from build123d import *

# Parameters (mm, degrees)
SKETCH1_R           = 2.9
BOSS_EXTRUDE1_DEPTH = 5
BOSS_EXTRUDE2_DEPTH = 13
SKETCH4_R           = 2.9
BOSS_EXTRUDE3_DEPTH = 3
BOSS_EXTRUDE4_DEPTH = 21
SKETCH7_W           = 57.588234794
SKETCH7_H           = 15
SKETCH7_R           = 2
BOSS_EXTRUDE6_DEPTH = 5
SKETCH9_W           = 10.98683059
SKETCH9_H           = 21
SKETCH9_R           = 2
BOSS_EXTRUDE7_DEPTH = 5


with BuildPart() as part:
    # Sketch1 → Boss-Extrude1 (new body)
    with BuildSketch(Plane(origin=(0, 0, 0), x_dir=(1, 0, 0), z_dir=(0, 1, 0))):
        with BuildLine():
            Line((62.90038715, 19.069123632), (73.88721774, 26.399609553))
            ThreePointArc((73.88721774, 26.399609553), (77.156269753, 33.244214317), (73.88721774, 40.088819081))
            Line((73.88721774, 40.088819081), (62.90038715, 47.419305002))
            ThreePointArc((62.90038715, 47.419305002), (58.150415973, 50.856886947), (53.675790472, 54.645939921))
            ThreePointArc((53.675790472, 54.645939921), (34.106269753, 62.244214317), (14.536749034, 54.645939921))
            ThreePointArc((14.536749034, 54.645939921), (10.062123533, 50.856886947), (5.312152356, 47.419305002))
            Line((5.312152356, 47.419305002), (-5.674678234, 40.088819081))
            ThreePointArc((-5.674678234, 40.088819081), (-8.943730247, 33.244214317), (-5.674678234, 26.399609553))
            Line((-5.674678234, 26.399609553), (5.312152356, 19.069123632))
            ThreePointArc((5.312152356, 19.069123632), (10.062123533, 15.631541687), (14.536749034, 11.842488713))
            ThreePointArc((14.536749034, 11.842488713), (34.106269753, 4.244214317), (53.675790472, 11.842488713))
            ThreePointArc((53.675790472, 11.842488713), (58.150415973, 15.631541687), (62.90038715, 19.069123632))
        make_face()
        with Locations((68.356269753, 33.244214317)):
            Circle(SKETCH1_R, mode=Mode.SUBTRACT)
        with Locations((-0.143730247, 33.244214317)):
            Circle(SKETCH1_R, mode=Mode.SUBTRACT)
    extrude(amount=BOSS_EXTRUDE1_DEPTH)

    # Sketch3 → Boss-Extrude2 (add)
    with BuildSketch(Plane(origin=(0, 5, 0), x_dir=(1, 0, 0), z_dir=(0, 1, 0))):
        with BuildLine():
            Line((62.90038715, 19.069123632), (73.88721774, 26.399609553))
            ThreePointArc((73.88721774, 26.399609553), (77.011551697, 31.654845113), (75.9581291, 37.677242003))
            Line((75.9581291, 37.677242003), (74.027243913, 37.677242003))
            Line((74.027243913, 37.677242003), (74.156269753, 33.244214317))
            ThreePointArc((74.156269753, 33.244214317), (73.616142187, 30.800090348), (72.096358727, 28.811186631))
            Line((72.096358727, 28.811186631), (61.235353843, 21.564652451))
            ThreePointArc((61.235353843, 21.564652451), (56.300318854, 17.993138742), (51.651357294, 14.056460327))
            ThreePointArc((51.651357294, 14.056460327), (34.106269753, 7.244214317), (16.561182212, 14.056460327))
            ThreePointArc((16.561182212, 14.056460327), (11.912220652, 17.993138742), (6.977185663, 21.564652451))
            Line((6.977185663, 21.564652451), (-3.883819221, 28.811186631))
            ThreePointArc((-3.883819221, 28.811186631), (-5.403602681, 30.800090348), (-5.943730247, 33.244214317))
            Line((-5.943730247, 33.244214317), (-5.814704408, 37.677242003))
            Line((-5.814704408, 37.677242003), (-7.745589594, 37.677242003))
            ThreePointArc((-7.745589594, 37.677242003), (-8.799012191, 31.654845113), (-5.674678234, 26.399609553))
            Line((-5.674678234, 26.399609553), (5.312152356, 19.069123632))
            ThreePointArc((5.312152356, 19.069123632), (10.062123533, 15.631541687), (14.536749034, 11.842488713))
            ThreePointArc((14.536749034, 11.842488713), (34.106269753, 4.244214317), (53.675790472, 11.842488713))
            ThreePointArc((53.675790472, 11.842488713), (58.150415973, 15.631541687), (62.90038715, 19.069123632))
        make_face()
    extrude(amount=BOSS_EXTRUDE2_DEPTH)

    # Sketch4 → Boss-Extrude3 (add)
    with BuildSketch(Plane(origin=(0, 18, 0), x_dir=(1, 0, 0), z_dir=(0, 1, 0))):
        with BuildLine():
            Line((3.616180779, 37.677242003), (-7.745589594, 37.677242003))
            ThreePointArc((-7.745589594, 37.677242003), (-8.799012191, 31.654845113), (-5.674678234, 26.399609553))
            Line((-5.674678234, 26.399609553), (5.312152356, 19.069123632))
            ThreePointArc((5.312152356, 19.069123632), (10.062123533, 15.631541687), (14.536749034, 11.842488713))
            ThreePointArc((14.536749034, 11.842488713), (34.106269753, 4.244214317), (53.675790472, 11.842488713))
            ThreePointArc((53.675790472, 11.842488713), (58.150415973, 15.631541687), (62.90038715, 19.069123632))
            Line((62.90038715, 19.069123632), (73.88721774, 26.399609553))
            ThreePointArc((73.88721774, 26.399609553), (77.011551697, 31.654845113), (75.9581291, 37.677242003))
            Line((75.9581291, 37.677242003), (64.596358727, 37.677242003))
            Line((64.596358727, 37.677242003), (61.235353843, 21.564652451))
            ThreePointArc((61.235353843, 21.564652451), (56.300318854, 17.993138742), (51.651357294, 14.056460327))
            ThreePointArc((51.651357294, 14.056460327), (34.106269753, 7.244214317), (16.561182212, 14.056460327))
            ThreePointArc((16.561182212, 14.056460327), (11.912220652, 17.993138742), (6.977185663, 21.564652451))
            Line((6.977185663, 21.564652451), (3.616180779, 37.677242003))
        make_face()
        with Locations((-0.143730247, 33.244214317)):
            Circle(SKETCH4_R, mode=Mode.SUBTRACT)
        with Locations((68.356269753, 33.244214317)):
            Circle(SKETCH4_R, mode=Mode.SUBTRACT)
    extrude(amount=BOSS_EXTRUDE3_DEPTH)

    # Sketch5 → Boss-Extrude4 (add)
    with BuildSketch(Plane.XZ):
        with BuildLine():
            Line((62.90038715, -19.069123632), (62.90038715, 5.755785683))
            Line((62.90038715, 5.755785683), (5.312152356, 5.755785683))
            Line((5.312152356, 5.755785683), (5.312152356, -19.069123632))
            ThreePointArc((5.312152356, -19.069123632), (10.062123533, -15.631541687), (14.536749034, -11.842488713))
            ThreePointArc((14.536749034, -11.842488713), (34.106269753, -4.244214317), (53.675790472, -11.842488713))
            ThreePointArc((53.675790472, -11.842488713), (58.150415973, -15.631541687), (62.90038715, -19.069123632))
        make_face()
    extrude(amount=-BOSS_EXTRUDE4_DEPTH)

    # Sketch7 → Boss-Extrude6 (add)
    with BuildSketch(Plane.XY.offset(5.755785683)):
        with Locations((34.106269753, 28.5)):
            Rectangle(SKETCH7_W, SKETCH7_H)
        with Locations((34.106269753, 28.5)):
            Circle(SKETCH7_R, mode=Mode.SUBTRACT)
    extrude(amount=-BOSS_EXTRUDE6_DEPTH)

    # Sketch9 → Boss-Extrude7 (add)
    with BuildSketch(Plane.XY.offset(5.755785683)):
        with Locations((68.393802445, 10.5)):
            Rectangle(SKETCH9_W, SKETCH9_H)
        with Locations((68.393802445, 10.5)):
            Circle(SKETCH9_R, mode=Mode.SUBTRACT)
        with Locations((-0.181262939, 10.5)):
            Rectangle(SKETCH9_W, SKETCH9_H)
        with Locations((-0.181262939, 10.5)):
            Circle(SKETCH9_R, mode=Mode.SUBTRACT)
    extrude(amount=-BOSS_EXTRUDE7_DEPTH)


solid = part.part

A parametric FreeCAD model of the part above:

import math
import FreeCAD as App
import Part
import Sketcher

doc = App.newDocument("Part")
body = doc.addObject("PartDesign::Body", "Body")

# Sketch on XZ plane
sketch1 = body.newObject("Sketcher::SketchObject", "Sketch")
sketch1.AttachmentSupport = (doc.getObject("XZ_Plane"), [""])
sketch1.MapMode = "FlatFace"
sketch1.addGeometry([
    Part.LineSegment(App.Vector(62.9, -19.1, 0), App.Vector(73.9, -26.4, 0)),  # 0
    Part.ArcOfCircle(Part.Circle(App.Vector(68.4, -33.2, 0), App.Vector(0, 0, 1), 8.8), math.radians(-51), math.radians(51)),  # 1
    Part.LineSegment(App.Vector(73.9, -40.1, 0), App.Vector(62.9, -47.4, 0)),  # 2
    Part.ArcOfCircle(Part.Circle(App.Vector(105.6, -111.5, 0), App.Vector(0, 0, 1), 77), math.radians(123.71), math.radians(132.44)),  # 3
    Part.ArcOfCircle(Part.Circle(App.Vector(34.1, -33.2, 0), App.Vector(0, 0, 1), 29), math.radians(-132), math.radians(-48)),  # 4
    Part.ArcOfCircle(Part.Circle(App.Vector(-37.4, -111.5, 0), App.Vector(0, 0, 1), 77), math.radians(47.56), math.radians(56.29)),  # 5
    Part.LineSegment(App.Vector(5.3, -47.4, 0), App.Vector(-5.7, -40.1, 0)),  # 6
    Part.ArcOfCircle(Part.Circle(App.Vector(-0.1, -33.2, 0), App.Vector(0, 0, 1), 8.8), math.radians(129), math.radians(231)),  # 7
    Part.LineSegment(App.Vector(-5.7, -26.4, 0), App.Vector(5.3, -19.1, 0)),  # 8
    Part.ArcOfCircle(Part.Circle(App.Vector(-37.4, 45, 0), App.Vector(0, 0, 1), 77), math.radians(-56.29), math.radians(-47.56)),  # 9
    Part.ArcOfCircle(Part.Circle(App.Vector(34.1, -33.2, 0), App.Vector(0, 0, 1), 29), math.radians(48), math.radians(132)),  # 10
    Part.ArcOfCircle(Part.Circle(App.Vector(105.6, 45, 0), App.Vector(0, 0, 1), 77), math.radians(-132.44), math.radians(-123.71)),  # 11
    Part.Circle(App.Vector(-0.1, -33.2, 0), App.Vector(0, 0, 1), 2.9),  # 12
    Part.Circle(App.Vector(68.4, -33.2, 0), App.Vector(0, 0, 1), 2.9),  # 13
], False)
sketch1.addConstraint([
    Sketcher.Constraint("Coincident", 0, 2, 1, 2),
    Sketcher.Constraint("Coincident", 1, 1, 2, 1),
    Sketcher.Constraint("Tangent", 2, 2, 3, 1),
    Sketcher.Constraint("Tangent", 3, 2, 4, 2),
    Sketcher.Constraint("Tangent", 4, 1, 5, 1),
    Sketcher.Constraint("Tangent", 5, 2, 6, 1),
    Sketcher.Constraint("Coincident", 6, 2, 7, 2),
    Sketcher.Constraint("Coincident", 7, 1, 8, 1),
    Sketcher.Constraint("Tangent", 8, 2, 9, 1),
    Sketcher.Constraint("Tangent", 9, 2, 10, 2),
    Sketcher.Constraint("Tangent", 10, 1, 11, 1),
    Sketcher.Constraint("Tangent", 11, 2, 0, 1),
    Sketcher.Constraint("Coincident", 10, 3, 4, 3),
    Sketcher.Constraint("Coincident", 12, 3, 7, 3),
    Sketcher.Constraint("Coincident", 13, 3, 1, 3),
    Sketcher.Constraint("Equal", 3, 5),
    Sketcher.Constraint("Equal", 1, 7),
    Sketcher.Constraint("Equal", 5, 9),
    Sketcher.Constraint("Equal", 4, 10),
    Sketcher.Constraint("Equal", 9, 11),
    Sketcher.Constraint("Equal", 12, 13),
    Sketcher.Constraint("Parallel", 0, 6),
    Sketcher.Constraint("Parallel", 2, 8),
    Sketcher.Constraint("Horizontal", 1, 3, 4, 3),
    Sketcher.Constraint("Horizontal", 3, 3, 5, 3),
    Sketcher.Constraint("Horizontal", 4, 3, 7, 3),
    Sketcher.Constraint("Horizontal", 9, 3, 11, 3),
    Sketcher.Constraint("Horizontal", 2, 2, 5, 2),
    Sketcher.Constraint("Horizontal", 1, 1, 6, 2),
    Sketcher.Constraint("Vertical", 5, 3, 9, 3),
    Sketcher.Constraint("Radius", 3, 77.0),
    Sketcher.Constraint("Radius", 4, 29.0),
    Sketcher.Constraint("Diameter", 12, 5.8),
    Sketcher.Constraint("Radius", 1, 8.8),
    Sketcher.Constraint("DistanceX", 7, 3, 1, 3, 68.5),
    Sketcher.Constraint("Distance", 0, 13.207819),
    Sketcher.Constraint("DistanceX", -1, 1, 1, 3, 68.35627),
    Sketcher.Constraint("DistanceX", -1, 1, 3, 3, 105.636242),
    Sketcher.Constraint("DistanceY", 3, 3, -1, 1, 111.471211),
])
pad1 = body.newObject("PartDesign::Pad", "Pad")
pad1.Profile = sketch1
pad1.Length = 5
pad1.Reversed = True

# Sketch on XZ plane
sketch2 = body.newObject("Sketcher::SketchObject", "Sketch001")
sketch2.AttachmentSupport = (doc.getObject("XZ_Plane"), [""])
sketch2.MapMode = "FlatFace"
sketch2.AttachmentOffset = App.Placement(App.Vector(0, 0, -5), App.Rotation())
sketch2.addGeometry([
    Part.LineSegment(App.Vector(62.9, -19.1, 0), App.Vector(73.9, -26.4, 0)),  # 0
    Part.ArcOfCircle(Part.Circle(App.Vector(68.4, -33.2, 0), App.Vector(0, 0, 1), 8.8), math.radians(-30), math.radians(51)),  # 1
    Part.LineSegment(App.Vector(76, -37.7, 0), App.Vector(74, -37.7, 0)),  # 2
    Part.LineSegment(App.Vector(74, -37.7, 0), App.Vector(74.2, -33.2, 0)),  # 3
    Part.ArcOfCircle(Part.Circle(App.Vector(68.4, -33.2, 0), App.Vector(0, 0, 1), 5.8), math.radians(0), math.radians(50)),  # 4
    Part.LineSegment(App.Vector(72.1, -28.8, 0), App.Vector(61.2, -21.6, 0)),  # 5
    Part.ArcOfCircle(Part.Circle(App.Vector(105.6, 45, 0), App.Vector(0, 0, 1), 80), math.radians(-132.44), math.radians(-123.71)),  # 6
    Part.ArcOfCircle(Part.Circle(App.Vector(34.1, -33.2, 0), App.Vector(0, 0, 1), 26), math.radians(48), math.radians(132)),  # 7
    Part.ArcOfCircle(Part.Circle(App.Vector(-37.4, 45, 0), App.Vector(0, 0, 1), 80), math.radians(-56.29), math.radians(-47.56)),  # 8
    Part.LineSegment(App.Vector(7, -21.6, 0), App.Vector(-3.9, -28.8, 0)),  # 9
    Part.ArcOfCircle(Part.Circle(App.Vector(-0.1, -33.2, 0), App.Vector(0, 0, 1), 5.8), math.radians(130), math.radians(180)),  # 10
    Part.LineSegment(App.Vector(-5.9, -33.2, 0), App.Vector(-5.8, -37.7, 0)),  # 11
    Part.LineSegment(App.Vector(-5.8, -37.7, 0), App.Vector(-7.7, -37.7, 0)),  # 12
    Part.ArcOfCircle(Part.Circle(App.Vector(-0.1, -33.2, 0), App.Vector(0, 0, 1), 8.8), math.radians(129), math.radians(210)),  # 13
    Part.LineSegment(App.Vector(-5.7, -26.4, 0), App.Vector(5.3, -19.1, 0)),  # 14
    Part.ArcOfCircle(Part.Circle(App.Vector(-37.4, 45, 0), App.Vector(0, 0, 1), 77), math.radians(-56.29), math.radians(-47.56)),  # 15
    Part.ArcOfCircle(Part.Circle(App.Vector(34.1, -33.2, 0), App.Vector(0, 0, 1), 29), math.radians(48), math.radians(132)),  # 16
    Part.ArcOfCircle(Part.Circle(App.Vector(105.6, 45, 0), App.Vector(0, 0, 1), 77), math.radians(-132.44), math.radians(-123.71)),  # 17
], False)
sketch2.addConstraint([
    Sketcher.Constraint("Coincident", 0, 2, 1, 2),
    Sketcher.Constraint("Coincident", 1, 1, 2, 1),
    Sketcher.Constraint("Coincident", 2, 2, 3, 1),
    Sketcher.Constraint("Coincident", 3, 2, 4, 1),
    Sketcher.Constraint("Coincident", 4, 2, 5, 1),
    Sketcher.Constraint("Tangent", 5, 2, 6, 2),
    Sketcher.Constraint("Tangent", 6, 1, 7, 1),
    Sketcher.Constraint("Tangent", 7, 2, 8, 2),
    Sketcher.Constraint("Tangent", 8, 1, 9, 1),
    Sketcher.Constraint("Coincident", 9, 2, 10, 1),
    Sketcher.Constraint("Coincident", 10, 2, 11, 1),
    Sketcher.Constraint("Coincident", 11, 2, 12, 1),
    Sketcher.Constraint("Coincident", 12, 2, 13, 2),
    Sketcher.Constraint("Coincident", 13, 1, 14, 1),
    Sketcher.Constraint("Tangent", 14, 2, 15, 1),
    Sketcher.Constraint("Tangent", 15, 2, 16, 2),
    Sketcher.Constraint("Tangent", 16, 1, 17, 1),
    Sketcher.Constraint("Tangent", 17, 2, 0, 1),
    Sketcher.Constraint("Horizontal", 2),
    Sketcher.Constraint("Horizontal", 12),
    Sketcher.Constraint("Coincident", 4, 3, 1, 3),
    Sketcher.Constraint("Coincident", 13, 3, 10, 3),
    Sketcher.Constraint("Coincident", 15, 3, 8, 3),
    Sketcher.Constraint("Coincident", 16, 3, 7, 3),
    Sketcher.Constraint("Coincident", 17, 3, 6, 3),
    Sketcher.Constraint("Equal", 6, 8),
    Sketcher.Constraint("Equal", 4, 10),
    Sketcher.Constraint("Equal", 1, 13),
    Sketcher.Constraint("Parallel", 0, 5),
    Sketcher.Constraint("Parallel", 9, 14),
    Sketcher.Constraint("Horizontal", 4, 3, 7, 3),
    Sketcher.Constraint("Horizontal", 6, 3, 8, 3),
    Sketcher.Constraint("Horizontal", 7, 3, 10, 3),
    Sketcher.Constraint("Horizontal", 16, 3, 3, 2),
    Sketcher.Constraint("Horizontal", 5, 2, 8, 1),
    Sketcher.Constraint("Horizontal", 4, 2, 9, 2),
    Sketcher.Constraint("Horizontal", 3, 2, 10, 2),
    Sketcher.Constraint("Horizontal", 2, 2, 11, 2),
    Sketcher.Constraint("Equal", 2, 12),
    Sketcher.Constraint("Radius", 6, 80.0),
    Sketcher.Constraint("Radius", 7, 26.0),
    Sketcher.Constraint("Radius", 15, 77.0),
    Sketcher.Constraint("Radius", 1, 8.8),
    Sketcher.Constraint("Radius", 4, 5.8),
    Sketcher.Constraint("DistanceX", 10, 3, 1, 3, 68.5),
    Sketcher.Constraint("DistanceX", 6, 1, 4, 2, 20.445001),
    Sketcher.Constraint("Distance", 0, 13.207819),
    Sketcher.Constraint("DistanceX", 2, 2, 2, 1, 1.930885),
    Sketcher.Constraint("DistanceX", -1, 1, 1, 3, 68.35627),
    Sketcher.Constraint("DistanceY", 0, 2, -1, 1, 26.39961),
    Sketcher.Constraint("DistanceX", -1, 1, 1, 1, 75.958129),
])
pad2 = body.newObject("PartDesign::Pad", "Pad001")
pad2.Profile = sketch2
pad2.Length = 13
pad2.Reversed = True

# Sketch on XZ plane
sketch3 = body.newObject("Sketcher::SketchObject", "Sketch002")
sketch3.AttachmentSupport = (doc.getObject("XZ_Plane"), [""])
sketch3.MapMode = "FlatFace"
sketch3.AttachmentOffset = App.Placement(App.Vector(0, 0, -18), App.Rotation())
sketch3.addGeometry([
    Part.LineSegment(App.Vector(3.6, -37.7, 0), App.Vector(-7.7, -37.7, 0)),  # 0
    Part.ArcOfCircle(Part.Circle(App.Vector(-0.1, -33.2, 0), App.Vector(0, 0, 1), 8.8), math.radians(129), math.radians(210)),  # 1
    Part.LineSegment(App.Vector(-5.7, -26.4, 0), App.Vector(5.3, -19.1, 0)),  # 2
    Part.ArcOfCircle(Part.Circle(App.Vector(-37.4, 45, 0), App.Vector(0, 0, 1), 77), math.radians(-56.29), math.radians(-47.56)),  # 3
    Part.ArcOfCircle(Part.Circle(App.Vector(34.1, -33.2, 0), App.Vector(0, 0, 1), 29), math.radians(48), math.radians(132)),  # 4
    Part.ArcOfCircle(Part.Circle(App.Vector(105.6, 45, 0), App.Vector(0, 0, 1), 77), math.radians(-132.44), math.radians(-123.71)),  # 5
    Part.LineSegment(App.Vector(62.9, -19.1, 0), App.Vector(73.9, -26.4, 0)),  # 6
    Part.ArcOfCircle(Part.Circle(App.Vector(68.4, -33.2, 0), App.Vector(0, 0, 1), 8.8), math.radians(-30), math.radians(51)),  # 7
    Part.LineSegment(App.Vector(76, -37.7, 0), App.Vector(64.6, -37.7, 0)),  # 8
    Part.LineSegment(App.Vector(64.6, -37.7, 0), App.Vector(61.2, -21.6, 0)),  # 9
    Part.ArcOfCircle(Part.Circle(App.Vector(105.6, 45, 0), App.Vector(0, 0, 1), 80), math.radians(-132.44), math.radians(-123.71)),  # 10
    Part.ArcOfCircle(Part.Circle(App.Vector(34.1, -33.2, 0), App.Vector(0, 0, 1), 26), math.radians(48), math.radians(132)),  # 11
    Part.ArcOfCircle(Part.Circle(App.Vector(-37.4, 45, 0), App.Vector(0, 0, 1), 80), math.radians(-56.29), math.radians(-47.56)),  # 12
    Part.LineSegment(App.Vector(7, -21.6, 0), App.Vector(3.6, -37.7, 0)),  # 13
    Part.Circle(App.Vector(-0.1, -33.2, 0), App.Vector(0, 0, 1), 2.9),  # 14
    Part.Circle(App.Vector(68.4, -33.2, 0), App.Vector(0, 0, 1), 2.9),  # 15
], False)
sketch3.addConstraint([
    Sketcher.Constraint("Coincident", 0, 2, 1, 2),
    Sketcher.Constraint("Coincident", 1, 1, 2, 1),
    Sketcher.Constraint("Tangent", 2, 2, 3, 1),
    Sketcher.Constraint("Tangent", 3, 2, 4, 2),
    Sketcher.Constraint("Tangent", 4, 1, 5, 1),
    Sketcher.Constraint("Tangent", 5, 2, 6, 1),
    Sketcher.Constraint("Coincident", 6, 2, 7, 2),
    Sketcher.Constraint("Coincident", 7, 1, 8, 1),
    Sketcher.Constraint("Coincident", 8, 2, 9, 1),
    Sketcher.Constraint("Coincident", 9, 2, 10, 2),
    Sketcher.Constraint("Tangent", 10, 1, 11, 1),
    Sketcher.Constraint("Tangent", 11, 2, 12, 2),
    Sketcher.Constraint("Coincident", 12, 1, 13, 1),
    Sketcher.Constraint("Coincident", 13, 2, 0, 1),
    Sketcher.Constraint("Horizontal", 0),
    Sketcher.Constraint("Horizontal", 8),
    Sketcher.Constraint("Coincident", 10, 3, 5, 3),
    Sketcher.Constraint("Coincident", 11, 3, 4, 3),
    Sketcher.Constraint("Coincident", 12, 3, 3, 3),
    Sketcher.Constraint("Coincident", 14, 3, 1, 3),
    Sketcher.Constraint("Coincident", 15, 3, 7, 3),
    Sketcher.Constraint("Equal", 3, 5),
    Sketcher.Constraint("Equal", 1, 7),
    Sketcher.Constraint("Equal", 14, 15),
    Sketcher.Constraint("Horizontal", 1, 3, 4, 3),
    Sketcher.Constraint("Horizontal", 3, 3, 5, 3),
    Sketcher.Constraint("Horizontal", 4, 3, 7, 3),
    Sketcher.Constraint("Horizontal", 2, 2, 5, 2),
    Sketcher.Constraint("Horizontal", 1, 1, 6, 2),
    Sketcher.Constraint("Horizontal", 0, 2, 7, 1),
    Sketcher.Constraint("Horizontal", 9, 2, 12, 1),
    Sketcher.Constraint("Equal", 0, 8),
    Sketcher.Constraint("Radius", 3, 77.0),
    Sketcher.Constraint("Radius", 4, 29.0),
    Sketcher.Constraint("Radius", 10, 80.0),
    Sketcher.Constraint("Diameter", 14, 5.8),
    Sketcher.Constraint("Radius", 1, 8.8),
    Sketcher.Constraint("DistanceX", 1, 3, 7, 3, 68.5),
    Sketcher.Constraint("Distance", 9, 16.459401),
    Sketcher.Constraint("DistanceX", 0, 2, 0, 1, 11.36177),
    Sketcher.Constraint("Distance", 2, 13.207819),
    Sketcher.Constraint("DistanceX", 1, 3, -1, 1, 0.14373),
    Sketcher.Constraint("DistanceX", -1, 1, 5, 3, 105.636242),
    Sketcher.Constraint("DistanceX", 0, 2, -1, 1, 7.74559),
    Sketcher.Constraint("DistanceY", 1, 1, -1, 1, 26.39961),
])
pad3 = body.newObject("PartDesign::Pad", "Pad002")
pad3.Profile = sketch3
pad3.Length = 3
pad3.Reversed = True

# Sketch on XZ plane
sketch4 = body.newObject("Sketcher::SketchObject", "Sketch003")
sketch4.AttachmentSupport = (doc.getObject("XZ_Plane"), [""])
sketch4.MapMode = "FlatFace"
sketch4.addGeometry([
    Part.LineSegment(App.Vector(63, -19, 0), App.Vector(63, 6, 0)),  # 0
    Part.LineSegment(App.Vector(63, 6, 0), App.Vector(5, 6, 0)),  # 1
    Part.LineSegment(App.Vector(5, 6, 0), App.Vector(5, -19, 0)),  # 2
    Part.ArcOfCircle(Part.Circle(App.Vector(-37, 45, 0), App.Vector(0, 0, 1), 77), math.radians(-56.29), math.radians(-47.56)),  # 3
    Part.ArcOfCircle(Part.Circle(App.Vector(34, -33, 0), App.Vector(0, 0, 1), 29), math.radians(48), math.radians(132)),  # 4
    Part.ArcOfCircle(Part.Circle(App.Vector(106, 45, 0), App.Vector(0, 0, 1), 77), math.radians(-132.44), math.radians(-123.71)),  # 5
], False)
sketch4.addConstraint([
    Sketcher.Constraint("Coincident", 0, 2, 1, 1),
    Sketcher.Constraint("Coincident", 1, 2, 2, 1),
    Sketcher.Constraint("Coincident", 2, 2, 3, 1),
    Sketcher.Constraint("Tangent", 3, 2, 4, 2),
    Sketcher.Constraint("Tangent", 4, 1, 5, 1),
    Sketcher.Constraint("Coincident", 5, 2, 0, 1),
    Sketcher.Constraint("Vertical", 0),
    Sketcher.Constraint("Horizontal", 1),
    Sketcher.Constraint("Vertical", 2),
    Sketcher.Constraint("Equal", 3, 5),
    Sketcher.Constraint("Horizontal", 3, 3, 5, 3),
    Sketcher.Constraint("Horizontal", 2, 2, 5, 2),
    Sketcher.Constraint("Radius", 3, 77.0),
    Sketcher.Constraint("Radius", 4, 29.0),
    Sketcher.Constraint("DistanceY", 4, 3, 0, 2, 39.0),
    Sketcher.Constraint("DistanceY", 0, 1, 0, 2, 24.824909),
    Sketcher.Constraint("DistanceX", 1, 2, 1, 1, 57.588235),
    Sketcher.Constraint("DistanceX", -1, 1, 4, 3, 34.10627),
    Sketcher.Constraint("DistanceY", 3, 2, -1, 1, 11.842489),
])
pad4 = body.newObject("PartDesign::Pad", "Pad003")
pad4.Profile = sketch4
pad4.Length = 21
pad4.Reversed = True

# Sketch on XY plane
sketch5 = body.newObject("Sketcher::SketchObject", "Sketch004")
sketch5.AttachmentSupport = (doc.getObject("XY_Plane"), [""])
sketch5.MapMode = "FlatFace"
sketch5.AttachmentOffset = App.Placement(App.Vector(0, 0, 5.755786), App.Rotation())
sketch5.addGeometry([
    Part.LineSegment(App.Vector(5.3, 36, 0), App.Vector(5.3, 21, 0)),  # 0
    Part.LineSegment(App.Vector(5.3, 21, 0), App.Vector(62.9, 21, 0)),  # 1
    Part.LineSegment(App.Vector(62.9, 21, 0), App.Vector(62.9, 36, 0)),  # 2
    Part.LineSegment(App.Vector(62.9, 36, 0), App.Vector(5.3, 36, 0)),  # 3
    Part.Circle(App.Vector(34.1, 28.5, 0), App.Vector(0, 0, 1), 2),  # 4
], False)
sketch5.addConstraint([
    Sketcher.Constraint("Coincident", 0, 2, 1, 1),
    Sketcher.Constraint("Coincident", 1, 2, 2, 1),
    Sketcher.Constraint("Coincident", 2, 2, 3, 1),
    Sketcher.Constraint("Coincident", 3, 2, 0, 1),
    Sketcher.Constraint("Vertical", 0),
    Sketcher.Constraint("Horizontal", 1),
    Sketcher.Constraint("Vertical", 2),
    Sketcher.Constraint("Horizontal", 3),
    Sketcher.Constraint("Diameter", 4, 4.0),
    Sketcher.Constraint("DistanceY", 0, 2, 0, 1, 15.0),
    Sketcher.Constraint("DistanceY", -1, 1, 0, 2, 21.0),
    Sketcher.Constraint("DistanceY", -1, 1, 4, 3, 28.5),
    Sketcher.Constraint("DistanceX", 1, 1, 1, 2, 57.588235),
    Sketcher.Constraint("DistanceX", -1, 1, 4, 3, 34.10627),
    Sketcher.Constraint("DistanceX", -1, 1, 0, 2, 5.312152),
])
pad5 = body.newObject("PartDesign::Pad", "Pad004")
pad5.Profile = sketch5
pad5.Length = 5
pad5.Reversed = True

# Sketch on XY plane
sketch6 = body.newObject("Sketcher::SketchObject", "Sketch005")
sketch6.AttachmentSupport = (doc.getObject("XY_Plane"), [""])
sketch6.MapMode = "FlatFace"
sketch6.AttachmentOffset = App.Placement(App.Vector(0, 0, 5.755786), App.Rotation())
sketch6.addGeometry([
    Part.LineSegment(App.Vector(62.9, 21, 0), App.Vector(62.9, 0, 0)),  # 0
    Part.LineSegment(App.Vector(62.9, 0, 0), App.Vector(73.9, 0, 0)),  # 1
    Part.LineSegment(App.Vector(73.9, 0, 0), App.Vector(73.9, 21, 0)),  # 2
    Part.LineSegment(App.Vector(73.9, 21, 0), App.Vector(62.9, 21, 0)),  # 3
    Part.Circle(App.Vector(68.4, 10.5, 0), App.Vector(0, 0, 1), 2),  # 4
    Part.LineSegment(App.Vector(-5.7, 21, 0), App.Vector(-5.7, 0, 0)),  # 5
    Part.LineSegment(App.Vector(-5.7, 0, 0), App.Vector(5.3, 0, 0)),  # 6
    Part.LineSegment(App.Vector(5.3, 0, 0), App.Vector(5.3, 21, 0)),  # 7
    Part.LineSegment(App.Vector(5.3, 21, 0), App.Vector(-5.7, 21, 0)),  # 8
    Part.Circle(App.Vector(-0.2, 10.5, 0), App.Vector(0, 0, 1), 2),  # 9
], False)
sketch6.addConstraint([
    Sketcher.Constraint("Coincident", 0, 2, 1, 1),
    Sketcher.Constraint("Coincident", 1, 2, 2, 1),
    Sketcher.Constraint("Coincident", 2, 2, 3, 1),
    Sketcher.Constraint("Coincident", 3, 2, 0, 1),
    Sketcher.Constraint("Coincident", 5, 2, 6, 1),
    Sketcher.Constraint("Coincident", 6, 2, 7, 1),
    Sketcher.Constraint("Coincident", 7, 2, 8, 1),
    Sketcher.Constraint("Coincident", 8, 2, 5, 1),
    Sketcher.Constraint("Vertical", 0),
    Sketcher.Constraint("Horizontal", 1),
    Sketcher.Constraint("Vertical", 2),
    Sketcher.Constraint("Horizontal", 3),
    Sketcher.Constraint("Vertical", 5),
    Sketcher.Constraint("Horizontal", 6),
    Sketcher.Constraint("Vertical", 7),
    Sketcher.Constraint("Horizontal", 8),
    Sketcher.Constraint("Equal", 4, 9),
    Sketcher.Constraint("PointOnObject", 0, 2, -1),
    Sketcher.Constraint("PointOnObject", 5, 2, -1),
    Sketcher.Constraint("Horizontal", 4, 3, 9, 3),
    Sketcher.Constraint("Horizontal", 3, 2, 7, 2),
    Sketcher.Constraint("Equal", 3, 6),
    Sketcher.Constraint("Diameter", 4, 4.0),
    Sketcher.Constraint("DistanceY", 0, 2, 0, 1, 21.0),
    Sketcher.Constraint("DistanceY", -1, 1, 4, 3, 10.5),
    Sketcher.Constraint("DistanceX", 1, 1, 1, 2, 10.986831),
    Sketcher.Constraint("DistanceX", 5, 2, -1, 1, 5.674678),
    Sketcher.Constraint("DistanceX", 9, 3, 0, 2, 63.08165),
    Sketcher.Constraint("DistanceX", 5, 2, 4, 3, 74.068481),
    Sketcher.Constraint("DistanceX", 9, 3, -1, 1, 0.181263),
])
pad6 = body.newObject("PartDesign::Pad", "Pad005")
pad6.Profile = sketch6
pad6.Length = 5
pad6.Reversed = True

doc.recompute()
